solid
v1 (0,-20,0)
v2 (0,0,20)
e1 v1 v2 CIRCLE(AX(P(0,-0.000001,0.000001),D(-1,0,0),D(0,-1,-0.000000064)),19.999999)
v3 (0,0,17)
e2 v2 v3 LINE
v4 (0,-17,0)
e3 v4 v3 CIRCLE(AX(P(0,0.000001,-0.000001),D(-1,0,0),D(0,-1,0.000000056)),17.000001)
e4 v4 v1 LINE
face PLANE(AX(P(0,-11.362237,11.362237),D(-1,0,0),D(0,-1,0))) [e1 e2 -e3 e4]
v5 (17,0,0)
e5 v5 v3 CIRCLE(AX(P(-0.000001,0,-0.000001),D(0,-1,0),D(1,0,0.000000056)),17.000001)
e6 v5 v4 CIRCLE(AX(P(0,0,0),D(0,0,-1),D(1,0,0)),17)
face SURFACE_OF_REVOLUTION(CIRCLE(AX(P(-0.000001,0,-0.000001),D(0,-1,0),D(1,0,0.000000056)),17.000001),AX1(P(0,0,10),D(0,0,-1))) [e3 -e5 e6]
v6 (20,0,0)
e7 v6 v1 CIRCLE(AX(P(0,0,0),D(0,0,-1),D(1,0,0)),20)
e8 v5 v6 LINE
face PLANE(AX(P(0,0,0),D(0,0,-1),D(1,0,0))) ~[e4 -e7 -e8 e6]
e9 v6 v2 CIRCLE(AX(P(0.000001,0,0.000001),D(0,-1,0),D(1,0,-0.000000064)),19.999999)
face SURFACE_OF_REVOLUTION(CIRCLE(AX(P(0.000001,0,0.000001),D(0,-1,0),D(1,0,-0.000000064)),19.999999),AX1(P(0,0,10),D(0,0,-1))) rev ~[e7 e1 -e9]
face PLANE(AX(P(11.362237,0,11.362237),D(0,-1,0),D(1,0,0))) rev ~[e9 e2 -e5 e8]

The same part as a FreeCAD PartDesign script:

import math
import FreeCAD as App
import Part
import Sketcher
Q = App.Units.Quantity

doc = App.newDocument("Part")
body = doc.addObject("PartDesign::Body", "Body")

sketch1 = body.newObject("Sketcher::SketchObject", "Sketch")
sketch1.AttachmentSupport = (doc.getObject("XZ_Plane"), [""])
sketch1.MapMode = "FlatFace"
sketch1.addGeometry(Part.ArcOfCircle(Part.Circle(App.Vector(0, 0, 0), App.Vector(0, 0, 1), 20), math.radians(0), math.radians(90)), False)
sketch1.addGeometry(Part.LineSegment(App.Vector(0, 20, 0), App.Vector(0, 0, 0)), False)
sketch1.addGeometry(Part.LineSegment(App.Vector(0, 0, 0), App.Vector(20, 0, 0)), False)
sketch1.addConstraint(Sketcher.Constraint("Coincident", 0, 2, 1, 1))
sketch1.addConstraint(Sketcher.Constraint("Coincident", 1, 2, 2, 1))
sketch1.addConstraint(Sketcher.Constraint("Coincident", 2, 2, 0, 1))
sketch1.addConstraint(Sketcher.Constraint("Vertical", 1))
sketch1.addConstraint(Sketcher.Constraint("Horizontal", 2))
sketch1.addConstraint(Sketcher.Constraint("Coincident", 0, 3, -1, 1))
sketch1.addConstraint(Sketcher.Constraint("Coincident", 1, 2, -1, 1))
sketch1.addConstraint(Sketcher.Constraint("Radius", 0, Q("19.999999 mm")))
revolution = body.newObject("PartDesign::Revolution", "Revolution")
revolution.Profile = sketch1
revolution.ReferenceAxis = (sketch1, ["V_Axis"])
revolution.Angle = 90
revolution.Reversed = True

sketch2 = body.newObject("Sketcher::SketchObject", "Sketch001")
sketch2.AttachmentSupport = (doc.getObject("XZ_Plane"), [""])
sketch2.MapMode = "FlatFace"
sketch2.addGeometry(Part.LineSegment(App.Vector(0, 0, 0), App.Vector(17, 0, 0)), False)
sketch2.addGeometry(Part.ArcOfCircle(Part.Circle(App.Vector(0, 0, 0), App.Vector(0, 0, 1), 17), math.radians(0), math.radians(90)), False)
sketch2.addGeometry(Part.LineSegment(App.Vector(0, 17, 0), App.Vector(0, 0, 0)), False)
sketch2.addConstraint(Sketcher.Constraint("Coincident", 0, 2, 1, 1))
sketch2.addConstraint(Sketcher.Constraint("Coincident", 1, 2, 2, 1))
sketch2.addConstraint(Sketcher.Constraint("Coincident", 2, 2, 0, 1))
sketch2.addConstraint(Sketcher.Constraint("Horizontal", 0))
sketch2.addConstraint(Sketcher.Constraint("Vertical", 2))
sketch2.addConstraint(Sketcher.Constraint("Coincident", 1, 3, -1, 1))
sketch2.addConstraint(Sketcher.Constraint("Coincident", 2, 2, -1, 1))
sketch2.addConstraint(Sketcher.Constraint("Radius", 1, Q("17.000001 mm")))
groove = body.newObject("PartDesign::Groove", "Groove")
groove.Profile = sketch2
groove.ReferenceAxis = (sketch2, ["V_Axis"])
groove.Angle = 90
groove.Reversed = True

doc.recompute()
